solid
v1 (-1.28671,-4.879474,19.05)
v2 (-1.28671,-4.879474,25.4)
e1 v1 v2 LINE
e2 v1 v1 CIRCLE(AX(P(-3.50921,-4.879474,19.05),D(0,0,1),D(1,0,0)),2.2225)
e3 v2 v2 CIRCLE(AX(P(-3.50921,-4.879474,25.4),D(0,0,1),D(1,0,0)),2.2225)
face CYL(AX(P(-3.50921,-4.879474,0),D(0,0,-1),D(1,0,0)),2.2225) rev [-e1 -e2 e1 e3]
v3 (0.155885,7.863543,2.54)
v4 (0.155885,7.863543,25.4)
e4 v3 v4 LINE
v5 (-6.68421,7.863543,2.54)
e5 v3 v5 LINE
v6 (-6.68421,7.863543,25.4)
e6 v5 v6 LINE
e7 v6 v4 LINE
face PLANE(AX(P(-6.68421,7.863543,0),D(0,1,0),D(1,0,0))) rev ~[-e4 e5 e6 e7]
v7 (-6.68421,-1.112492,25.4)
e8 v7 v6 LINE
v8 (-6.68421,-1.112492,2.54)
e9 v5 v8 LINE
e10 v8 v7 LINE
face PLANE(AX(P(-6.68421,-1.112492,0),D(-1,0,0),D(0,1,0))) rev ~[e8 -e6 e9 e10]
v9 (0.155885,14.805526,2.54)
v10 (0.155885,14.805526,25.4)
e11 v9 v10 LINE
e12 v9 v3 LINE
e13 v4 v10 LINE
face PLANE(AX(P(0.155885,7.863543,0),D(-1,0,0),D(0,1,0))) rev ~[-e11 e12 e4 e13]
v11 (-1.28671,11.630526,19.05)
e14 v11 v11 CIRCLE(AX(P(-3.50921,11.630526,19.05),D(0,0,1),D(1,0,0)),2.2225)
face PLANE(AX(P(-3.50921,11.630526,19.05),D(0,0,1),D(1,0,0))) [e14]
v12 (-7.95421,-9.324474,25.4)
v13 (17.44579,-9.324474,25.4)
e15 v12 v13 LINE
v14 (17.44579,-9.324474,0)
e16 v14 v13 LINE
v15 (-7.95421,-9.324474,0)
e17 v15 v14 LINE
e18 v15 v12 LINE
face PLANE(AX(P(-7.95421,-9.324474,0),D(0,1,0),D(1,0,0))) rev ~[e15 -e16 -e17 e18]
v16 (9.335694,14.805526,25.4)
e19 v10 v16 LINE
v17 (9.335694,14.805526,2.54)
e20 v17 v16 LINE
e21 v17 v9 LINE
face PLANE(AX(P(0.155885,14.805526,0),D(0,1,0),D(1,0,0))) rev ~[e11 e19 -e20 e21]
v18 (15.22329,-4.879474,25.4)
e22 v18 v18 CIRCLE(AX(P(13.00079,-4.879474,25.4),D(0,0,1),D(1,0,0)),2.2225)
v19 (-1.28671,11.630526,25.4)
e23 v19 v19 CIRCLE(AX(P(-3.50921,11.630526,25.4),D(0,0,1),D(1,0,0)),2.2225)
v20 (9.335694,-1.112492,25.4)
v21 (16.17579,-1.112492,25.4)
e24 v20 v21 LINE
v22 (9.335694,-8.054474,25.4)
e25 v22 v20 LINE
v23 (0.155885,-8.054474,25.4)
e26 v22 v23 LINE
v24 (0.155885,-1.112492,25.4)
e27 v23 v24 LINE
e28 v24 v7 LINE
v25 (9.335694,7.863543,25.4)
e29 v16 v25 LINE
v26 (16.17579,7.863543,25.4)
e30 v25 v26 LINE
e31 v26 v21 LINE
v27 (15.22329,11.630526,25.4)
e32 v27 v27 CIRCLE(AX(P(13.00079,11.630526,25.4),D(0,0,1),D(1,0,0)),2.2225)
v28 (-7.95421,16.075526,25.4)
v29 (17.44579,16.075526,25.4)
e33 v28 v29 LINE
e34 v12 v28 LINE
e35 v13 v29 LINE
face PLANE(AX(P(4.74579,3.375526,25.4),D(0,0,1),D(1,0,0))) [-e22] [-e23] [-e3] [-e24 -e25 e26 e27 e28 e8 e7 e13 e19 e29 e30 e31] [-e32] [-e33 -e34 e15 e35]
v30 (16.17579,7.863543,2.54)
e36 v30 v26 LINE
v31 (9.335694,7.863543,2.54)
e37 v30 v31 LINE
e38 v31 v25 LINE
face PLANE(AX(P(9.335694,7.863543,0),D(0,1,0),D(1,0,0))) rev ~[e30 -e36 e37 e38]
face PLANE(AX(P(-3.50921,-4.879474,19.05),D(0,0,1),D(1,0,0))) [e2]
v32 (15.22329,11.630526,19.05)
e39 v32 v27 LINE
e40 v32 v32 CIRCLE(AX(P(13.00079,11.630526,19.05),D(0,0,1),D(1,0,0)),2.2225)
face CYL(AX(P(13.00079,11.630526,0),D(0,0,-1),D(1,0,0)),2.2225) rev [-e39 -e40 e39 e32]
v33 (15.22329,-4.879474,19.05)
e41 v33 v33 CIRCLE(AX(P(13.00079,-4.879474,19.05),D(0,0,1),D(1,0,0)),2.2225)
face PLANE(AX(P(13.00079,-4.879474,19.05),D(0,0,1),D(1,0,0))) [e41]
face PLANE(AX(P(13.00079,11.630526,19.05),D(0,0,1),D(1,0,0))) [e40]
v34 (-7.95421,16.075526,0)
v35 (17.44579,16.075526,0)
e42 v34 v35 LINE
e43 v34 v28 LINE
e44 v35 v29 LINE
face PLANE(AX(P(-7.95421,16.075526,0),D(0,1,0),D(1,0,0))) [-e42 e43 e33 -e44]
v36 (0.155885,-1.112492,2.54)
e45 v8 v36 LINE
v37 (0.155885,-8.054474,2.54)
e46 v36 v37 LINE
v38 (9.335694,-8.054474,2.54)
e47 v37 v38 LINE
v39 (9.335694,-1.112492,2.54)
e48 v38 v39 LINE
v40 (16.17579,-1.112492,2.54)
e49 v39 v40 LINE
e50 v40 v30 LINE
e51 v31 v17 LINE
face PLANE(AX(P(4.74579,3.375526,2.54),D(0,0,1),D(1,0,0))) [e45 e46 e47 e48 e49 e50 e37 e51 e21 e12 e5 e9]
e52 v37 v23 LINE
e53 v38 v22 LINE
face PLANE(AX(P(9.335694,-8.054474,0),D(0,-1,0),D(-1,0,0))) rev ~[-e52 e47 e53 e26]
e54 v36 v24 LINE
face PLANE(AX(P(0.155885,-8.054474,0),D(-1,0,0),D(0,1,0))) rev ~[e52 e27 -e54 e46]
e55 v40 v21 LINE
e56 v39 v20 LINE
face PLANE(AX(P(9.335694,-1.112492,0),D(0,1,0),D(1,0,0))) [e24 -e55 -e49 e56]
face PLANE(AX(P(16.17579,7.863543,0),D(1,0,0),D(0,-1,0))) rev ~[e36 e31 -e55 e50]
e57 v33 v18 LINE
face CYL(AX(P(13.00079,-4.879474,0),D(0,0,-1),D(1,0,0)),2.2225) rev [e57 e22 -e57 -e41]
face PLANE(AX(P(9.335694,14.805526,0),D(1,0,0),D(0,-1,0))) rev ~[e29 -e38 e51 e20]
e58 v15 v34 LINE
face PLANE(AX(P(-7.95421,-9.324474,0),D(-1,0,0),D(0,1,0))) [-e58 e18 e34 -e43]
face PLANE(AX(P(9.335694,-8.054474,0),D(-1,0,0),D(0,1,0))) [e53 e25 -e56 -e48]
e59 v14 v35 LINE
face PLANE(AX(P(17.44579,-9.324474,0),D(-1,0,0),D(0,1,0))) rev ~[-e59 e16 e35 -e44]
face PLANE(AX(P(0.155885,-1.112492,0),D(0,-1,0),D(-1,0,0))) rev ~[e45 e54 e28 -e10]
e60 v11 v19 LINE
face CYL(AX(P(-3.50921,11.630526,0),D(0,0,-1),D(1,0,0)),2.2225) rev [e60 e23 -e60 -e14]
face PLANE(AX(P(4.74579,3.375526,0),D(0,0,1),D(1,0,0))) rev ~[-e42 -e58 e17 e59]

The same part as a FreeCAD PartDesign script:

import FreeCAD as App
import Part
import Sketcher
from FreeCAD import Vector
Q = App.Units.Quantity

doc = App.newDocument("Part")
body = doc.addObject("PartDesign::Body", "Body")

# Sketch on XY plane
sketch1 = body.newObject("Sketcher::SketchObject", "Sketch")
sketch1.AttachmentSupport = (doc.getObject("XY_Plane"), [""])
sketch1.MapMode = "FlatFace"
sketch1.addGeometry([
    Part.LineSegment(Vector(16, -1, 0), Vector(16, 8, 0)),  # 0
    Part.LineSegment(Vector(16, 8, 0), Vector(9, 8, 0)),  # 1
    Part.LineSegment(Vector(9, 8, 0), Vector(9, 15, 0)),  # 2
    Part.LineSegment(Vector(9, 15, 0), Vector(0, 15, 0)),  # 3
    Part.LineSegment(Vector(0, 15, 0), Vector(0, 8, 0)),  # 4
    Part.LineSegment(Vector(0, 8, 0), Vector(-7, 8, 0)),  # 5
    Part.LineSegment(Vector(-7, 8, 0), Vector(-7, -1, 0)),  # 6
    Part.LineSegment(Vector(-7, -1, 0), Vector(0, -1, 0)),  # 7
    Part.LineSegment(Vector(0, -1, 0), Vector(0, -8, 0)),  # 8
    Part.LineSegment(Vector(0, -8, 0), Vector(9, -8, 0)),  # 9
    Part.LineSegment(Vector(9, -8, 0), Vector(9, -1, 0)),  # 10
    Part.LineSegment(Vector(9, -1, 0), Vector(16, -1, 0)),  # 11
], False)
sketch1.addConstraint([
    Sketcher.Constraint("Coincident", 0, 2, 1, 1),
    Sketcher.Constraint("Coincident", 1, 2, 2, 1),
    Sketcher.Constraint("Coincident", 2, 2, 3, 1),
    Sketcher.Constraint("Coincident", 3, 2, 4, 1),
    Sketcher.Constraint("Coincident", 4, 2, 5, 1),
    Sketcher.Constraint("Coincident", 5, 2, 6, 1),
    Sketcher.Constraint("Coincident", 6, 2, 7, 1),
    Sketcher.Constraint("Coincident", 7, 2, 8, 1),
    Sketcher.Constraint("Coincident", 8, 2, 9, 1),
    Sketcher.Constraint("Coincident", 9, 2, 10, 1),
    Sketcher.Constraint("Coincident", 10, 2, 11, 1),
    Sketcher.Constraint("Coincident", 11, 2, 0, 1),
    Sketcher.Constraint("Vertical", 0),
    Sketcher.Constraint("Horizontal", 1),
    Sketcher.Constraint("Vertical", 2),
    Sketcher.Constraint("Horizontal", 3),
    Sketcher.Constraint("Vertical", 4),
    Sketcher.Constraint("Horizontal", 5),
    Sketcher.Constraint("Vertical", 6),
    Sketcher.Constraint("Horizontal", 7),
    Sketcher.Constraint("Vertical", 8),
    Sketcher.Constraint("Horizontal", 9),
    Sketcher.Constraint("Vertical", 10),
    Sketcher.Constraint("Horizontal", 11),
    Sketcher.Constraint("Horizontal", 1, 2, 4, 2),
    Sketcher.Constraint("Horizontal", 7, 2, 10, 2),
    Sketcher.Constraint("Vertical", 4, 2, 7, 2),
    Sketcher.Constraint("Vertical", 2, 2, 9, 2),
    Sketcher.Constraint("Equal", 1, 5),
    Sketcher.Constraint("Equal", 4, 8),
    Sketcher.Constraint("DistanceX", 5, 2, 0, 2, Q("0.9 in")),
    Sketcher.Constraint("DistanceX", 3, 2, 3, 1, 9.179809),
    Sketcher.Constraint("DistanceY", 0, 1, 0, 2, 8.976035),
    Sketcher.Constraint("DistanceY", 2, 1, 2, 2, 6.941983),
    Sketcher.Constraint("DistanceX", -1, 1, 0, 2, 16.17579),
    Sketcher.Constraint("DistanceY", 6, 2, -1, 1, 1.112492),
])
pad1 = body.newObject("PartDesign::Pad", "Pad")
pad1.Profile = sketch1
pad1.Length = Q("0.1 in")
body2 = doc.addObject("PartDesign::Body", "Body001")

# Sketch on XY plane
sketch2 = body2.newObject("Sketcher::SketchObject", "Sketch001")
sketch2.AttachmentSupport = (doc.getObject("XY_Plane001"), [""])
sketch2.MapMode = "FlatFace"
sketch2.addGeometry(Part.Circle(Vector(-3.5, 11.6, 0), Vector(0, 0, 1), 2.2), False)
sketch2.addConstraint([
    Sketcher.Constraint("Diameter", 0, Q("0.175 in")),
    Sketcher.Constraint("DistanceX", 0, 3, -1, 1, 3.50921),
    Sketcher.Constraint("DistanceY", -1, 1, 0, 3, 11.630526),
])
pad2 = body2.newObject("PartDesign::Pad", "Pad001")
pad2.Profile = sketch2
pad2.Length = Q("0.75 in")
body3 = doc.addObject("PartDesign::Body", "Body002")

# Sketch on XY plane
sketch3 = body3.newObject("Sketcher::SketchObject", "Sketch002")
sketch3.AttachmentSupport = (doc.getObject("XY_Plane002"), [""])
sketch3.MapMode = "FlatFace"
sketch3.addGeometry(Part.Circle(Vector(13, 11.6, 0), Vector(0, 0, 1), 2.2), False)
sketch3.addConstraint([
    Sketcher.Constraint("Diameter", 0, Q("0.175 in")),
    Sketcher.Constraint("DistanceX", -1, 1, 0, 3, 13.00079),
    Sketcher.Constraint("DistanceY", -1, 1, 0, 3, 11.630526),
])
pad3 = body3.newObject("PartDesign::Pad", "Pad002")
pad3.Profile = sketch3
pad3.Length = Q("0.75 in")
body4 = doc.addObject("PartDesign::Body", "Body003")

# Sketch on XY plane
sketch4 = body4.newObject("Sketcher::SketchObject", "Sketch003")
sketch4.AttachmentSupport = (doc.getObject("XY_Plane003"), [""])
sketch4.MapMode = "FlatFace"
sketch4.addGeometry(Part.Circle(Vector(13, -4.9, 0), Vector(0, 0, 1), 2.2), False)
sketch4.addConstraint([
    Sketcher.Constraint("Diameter", 0, Q("0.175 in")),
    Sketcher.Constraint("DistanceX", -1, 1, 0, 3, 13.00079),
    Sketcher.Constraint("DistanceY", 0, 3, -1, 1, 4.879474),
])
pad4 = body4.newObject("PartDesign::Pad", "Pad003")
pad4.Profile = sketch4
pad4.Length = Q("0.75 in")
body5 = doc.addObject("PartDesign::Body", "Body004")

# Sketch on XY plane
sketch5 = body5.newObject("Sketcher::SketchObject", "Sketch004")
sketch5.AttachmentSupport = (doc.getObject("XY_Plane004"), [""])
sketch5.MapMode = "FlatFace"
sketch5.addGeometry(Part.Circle(Vector(-3.5, -4.9, 0), Vector(0, 0, 1), 2.2), False)
sketch5.addConstraint([
    Sketcher.Constraint("Diameter", 0, Q("0.175 in")),
    Sketcher.Constraint("DistanceX", 0, 3, -1, 1, 3.50921),
    Sketcher.Constraint("DistanceY", 0, 3, -1, 1, 4.879474),
])
pad5 = body5.newObject("PartDesign::Pad", "Pad004")
pad5.Profile = sketch5
pad5.Length = Q("0.75 in")
body.AllowCompound = True
doc.recompute()

boolean = body.newObject("PartDesign::Boolean", "Boolean")
boolean.Type = "Fuse"
boolean.addObjects([body2])
doc.recompute()

boolean2 = body.newObject("PartDesign::Boolean", "Boolean001")
boolean2.Type = "Fuse"
boolean2.addObjects([body3])
doc.recompute()

boolean3 = body.newObject("PartDesign::Boolean", "Boolean002")
boolean3.Type = "Fuse"
boolean3.addObjects([body4])
doc.recompute()

boolean4 = body.newObject("PartDesign::Boolean", "Boolean003")
boolean4.Type = "Fuse"
boolean4.addObjects([body5])

# Sketch on XY plane
sketch6 = body.newObject("Sketcher::SketchObject", "Sketch005")
sketch6.AttachmentSupport = (doc.getObject("XY_Plane"), [""])
sketch6.MapMode = "FlatFace"
sketch6.addGeometry([
    Part.LineSegment(Vector(-8, 16.1, 0), Vector(-8, -9.3, 0)),  # 0
    Part.LineSegment(Vector(-8, -9.3, 0), Vector(17.4, -9.3, 0)),  # 1
    Part.LineSegment(Vector(17.4, -9.3, 0), Vector(17.4, 16.1, 0)),  # 2
    Part.LineSegment(Vector(17.4, 16.1, 0), Vector(-8, 16.1, 0)),  # 3
    Part.Circle(Vector(-3.5, -4.9, 0), Vector(0, 0, 1), 2.2),  # 4
    Part.Circle(Vector(13, -4.9, 0), Vector(0, 0, 1), 2.2),  # 5
    Part.Circle(Vector(-3.5, 11.6, 0), Vector(0, 0, 1), 2.2),  # 6
    Part.LineSegment(Vector(0.2, 14.8, 0), Vector(9.3, 14.8, 0)),  # 7
    Part.LineSegment(Vector(9.3, 14.8, 0), Vector(9.3, 7.9, 0)),  # 8
    Part.LineSegment(Vector(9.3, 7.9, 0), Vector(16.2, 7.9, 0)),  # 9
    Part.LineSegment(Vector(16.2, 7.9, 0), Vector(16.2, -1.1, 0)),  # 10
    Part.LineSegment(Vector(16.2, -1.1, 0), Vector(9.3, -1.1, 0)),  # 11
    Part.LineSegment(Vector(9.3, -1.1, 0), Vector(9.3, -8.1, 0)),  # 12
    Part.LineSegment(Vector(9.3, -8.1, 0), Vector(0.2, -8.1, 0)),  # 13
    Part.LineSegment(Vector(0.2, -8.1, 0), Vector(0.2, -1.1, 0)),  # 14
    Part.LineSegment(Vector(0.2, -1.1, 0), Vector(-6.7, -1.1, 0)),  # 15
    Part.LineSegment(Vector(-6.7, -1.1, 0), Vector(-6.7, 7.9, 0)),  # 16
    Part.LineSegment(Vector(-6.7, 7.9, 0), Vector(0.2, 7.9, 0)),  # 17
    Part.LineSegment(Vector(0.2, 7.9, 0), Vector(0.2, 14.8, 0)),  # 18
    Part.Circle(Vector(13, 11.6, 0), Vector(0, 0, 1), 2.2),  # 19
], False)
sketch6.addConstraint([
    Sketcher.Constraint("Coincident", 0, 2, 1, 1),
    Sketcher.Constraint("Coincident", 1, 2, 2, 1),
    Sketcher.Constraint("Coincident", 2, 2, 3, 1),
    Sketcher.Constraint("Coincident", 3, 2, 0, 1),
    Sketcher.Constraint("Coincident", 7, 2, 8, 1),
    Sketcher.Constraint("Coincident", 8, 2, 9, 1),
    Sketcher.Constraint("Coincident", 9, 2, 10, 1),
    Sketcher.Constraint("Coincident", 10, 2, 11, 1),
    Sketcher.Constraint("Coincident", 11, 2, 12, 1),
    Sketcher.Constraint("Coincident", 12, 2, 13, 1),
    Sketcher.Constraint("Coincident", 13, 2, 14, 1),
    Sketcher.Constraint("Coincident", 14, 2, 15, 1),
    Sketcher.Constraint("Coincident", 15, 2, 16, 1),
    Sketcher.Constraint("Coincident", 16, 2, 17, 1),
    Sketcher.Constraint("Coincident", 17, 2, 18, 1),
    Sketcher.Constraint("Coincident", 18, 2, 7, 1),
    Sketcher.Constraint("Vertical", 0),
    Sketcher.Constraint("Horizontal", 1),
    Sketcher.Constraint("Vertical", 2),
    Sketcher.Constraint("Horizontal", 3),
    Sketcher.Constraint("Horizontal", 7),
    Sketcher.Constraint("Vertical", 8),
    Sketcher.Constraint("Horizontal", 9),
    Sketcher.Constraint("Vertical", 10),
    Sketcher.Constraint("Horizontal", 11),
    Sketcher.Constraint("Vertical", 12),
    Sketcher.Constraint("Horizontal", 13),
    Sketcher.Constraint("Vertical", 14),
    Sketcher.Constraint("Horizontal", 15),
    Sketcher.Constraint("Vertical", 16),
    Sketcher.Constraint("Horizontal", 17),
    Sketcher.Constraint("Vertical", 18),
    Sketcher.Constraint("Equal", 4, 5),
    Sketcher.Constraint("Equal", 5, 6),
    Sketcher.Constraint("Equal", 6, 19),
    Sketcher.Constraint("Horizontal", 4, 3, 5, 3),
    Sketcher.Constraint("Horizontal", 6, 3, 19, 3),
    Sketcher.Constraint("Horizontal", 11, 2, 14, 2),
    Sketcher.Constraint("Horizontal", 9, 2, 16, 2),
    Sketcher.Constraint("Vertical", 4, 3, 6, 3),
    Sketcher.Constraint("Vertical", 5, 3, 19, 3),
    Sketcher.Constraint("Vertical", 8, 2, 11, 2),
    Sketcher.Constraint("Vertical", 14, 2, 17, 2),
    Sketcher.Constraint("Equal", 11, 15),
    Sketcher.Constraint("Equal", 3, 0),
    Sketcher.Constraint("Equal", 8, 12),
    Sketcher.Constraint("DistanceX", 1, 1, 1, 2, Q("1 in")),
    Sketcher.Constraint("Diameter", 4, Q("0.175 in")),
    Sketcher.Constraint("DistanceX", 4, 3, 5, 3, Q("0.65 in")),
    Sketcher.Constraint("DistanceY", 4, 3, 6, 3, Q("0.65 in")),
    Sketcher.Constraint("DistanceY", 7, 2, 2, 2, Q("0.05 in")),
    Sketcher.Constraint("DistanceX", 9, 2, 2, 2, Q("0.05 in")),
    Sketcher.Constraint("DistanceY", 1, 2, 12, 2, Q("0.05 in")),
    Sketcher.Constraint("DistanceX", 0, 2, 15, 2, Q("0.05 in")),
    Sketcher.Constraint("DistanceX", 0, 2, 4, 3, Q("0.175 in")),
    Sketcher.Constraint("DistanceY", 0, 2, 4, 3, Q("0.175 in")),
    Sketcher.Constraint("DistanceX", 7, 1, 7, 2, 9.179809),
    Sketcher.Constraint("DistanceY", 8, 2, 8, 1, 6.941983),
    Sketcher.Constraint("DistanceX", 4, 3, -1, 1, 3.50921),
    Sketcher.Constraint("DistanceY", 10, 2, -1, 1, 1.112492),
])
pad6 = body.newObject("PartDesign::Pad", "Pad005")
pad6.Profile = sketch6
pad6.Length = Q("1 in")

doc.recompute()
